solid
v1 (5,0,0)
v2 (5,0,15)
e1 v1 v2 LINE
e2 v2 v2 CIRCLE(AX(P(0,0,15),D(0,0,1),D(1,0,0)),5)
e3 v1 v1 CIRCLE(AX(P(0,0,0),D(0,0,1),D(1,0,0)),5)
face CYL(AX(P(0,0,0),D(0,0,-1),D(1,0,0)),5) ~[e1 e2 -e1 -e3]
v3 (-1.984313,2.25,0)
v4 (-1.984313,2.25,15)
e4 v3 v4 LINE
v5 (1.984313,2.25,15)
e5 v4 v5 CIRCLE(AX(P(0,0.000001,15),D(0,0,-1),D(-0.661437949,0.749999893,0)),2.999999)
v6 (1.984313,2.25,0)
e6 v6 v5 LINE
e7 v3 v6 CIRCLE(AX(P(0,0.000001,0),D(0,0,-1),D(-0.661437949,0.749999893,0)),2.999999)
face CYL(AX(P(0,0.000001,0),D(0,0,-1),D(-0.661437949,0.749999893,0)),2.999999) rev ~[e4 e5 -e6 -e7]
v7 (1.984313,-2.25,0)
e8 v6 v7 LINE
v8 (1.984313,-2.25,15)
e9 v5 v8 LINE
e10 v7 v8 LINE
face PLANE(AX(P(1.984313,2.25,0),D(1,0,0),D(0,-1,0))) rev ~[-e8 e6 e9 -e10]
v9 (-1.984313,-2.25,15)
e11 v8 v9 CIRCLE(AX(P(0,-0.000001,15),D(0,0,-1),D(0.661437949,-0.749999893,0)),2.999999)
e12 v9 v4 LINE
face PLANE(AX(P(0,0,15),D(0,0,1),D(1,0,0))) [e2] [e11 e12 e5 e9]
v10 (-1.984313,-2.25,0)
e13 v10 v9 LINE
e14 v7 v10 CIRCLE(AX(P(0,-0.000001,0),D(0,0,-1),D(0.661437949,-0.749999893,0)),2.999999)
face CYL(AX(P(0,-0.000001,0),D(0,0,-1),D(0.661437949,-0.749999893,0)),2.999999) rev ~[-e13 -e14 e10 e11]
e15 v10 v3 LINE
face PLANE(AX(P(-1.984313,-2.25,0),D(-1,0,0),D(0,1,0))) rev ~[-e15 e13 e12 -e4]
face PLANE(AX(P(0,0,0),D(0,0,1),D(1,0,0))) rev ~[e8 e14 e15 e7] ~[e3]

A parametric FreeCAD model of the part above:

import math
import FreeCAD as App
import Part
import Sketcher

V = App.Vector
Q = App.Units.Quantity

doc = App.newDocument("Part")
body = doc.addObject("PartDesign::Body", "Body")

sketch1 = doc.addObject("Sketcher::SketchObject", "Sketch")
body.addObject(sketch1)
sketch1.AttachmentSupport = (doc.XY_Plane, [""])
sketch1.MapMode = "FlatFace"
sketch1.addGeometry([
    Part.Circle(V(0, 0, 0), V(0, 0, 1), 5),
    Part.ArcOfCircle(Part.Circle(V(0, 0, 0), V(0, 0, 1), 3), math.radians(49), math.radians(131)),
    Part.LineSegment(V(2, 2.2, 0), V(2, -2.2, 0)),
    Part.ArcOfCircle(Part.Circle(V(0, 0, 0), V(0, 0, 1), 3), math.radians(-131), math.radians(-49)),
    Part.LineSegment(V(-2, -2.2, 0), V(-2, 2.2, 0)),
], False)
sketch1.addConstraint([
    Sketcher.Constraint("Coincident", 1, 1, 2, 1),
    Sketcher.Constraint("Coincident", 2, 2, 3, 2),
    Sketcher.Constraint("Coincident", 3, 1, 4, 1),
    Sketcher.Constraint("Coincident", 4, 2, 1, 2),
    Sketcher.Constraint("Vertical", 2),
    Sketcher.Constraint("Vertical", 4),
    Sketcher.Constraint("Coincident", 0, 3, -1, 1),
    Sketcher.Constraint("Coincident", 1, 3, -1, 1),
    Sketcher.Constraint("Coincident", 3, 3, -1, 1),
    Sketcher.Constraint("Equal", 1, 3),
    Sketcher.Constraint("Horizontal", 2, 2, 3, 1),
    Sketcher.Constraint("Diameter", 0, Q("10 mm")),
    Sketcher.Constraint("Radius", 1, Q("2.999999 mm")),
    Sketcher.Constraint("DistanceY", 2, 2, 2, 1, Q("4.5 mm")),
])
pad1 = doc.addObject("PartDesign::Pad", "Pad")
body.addObject(pad1)
pad1.Profile = sketch1
pad1.Length = 15

doc.recompute()
